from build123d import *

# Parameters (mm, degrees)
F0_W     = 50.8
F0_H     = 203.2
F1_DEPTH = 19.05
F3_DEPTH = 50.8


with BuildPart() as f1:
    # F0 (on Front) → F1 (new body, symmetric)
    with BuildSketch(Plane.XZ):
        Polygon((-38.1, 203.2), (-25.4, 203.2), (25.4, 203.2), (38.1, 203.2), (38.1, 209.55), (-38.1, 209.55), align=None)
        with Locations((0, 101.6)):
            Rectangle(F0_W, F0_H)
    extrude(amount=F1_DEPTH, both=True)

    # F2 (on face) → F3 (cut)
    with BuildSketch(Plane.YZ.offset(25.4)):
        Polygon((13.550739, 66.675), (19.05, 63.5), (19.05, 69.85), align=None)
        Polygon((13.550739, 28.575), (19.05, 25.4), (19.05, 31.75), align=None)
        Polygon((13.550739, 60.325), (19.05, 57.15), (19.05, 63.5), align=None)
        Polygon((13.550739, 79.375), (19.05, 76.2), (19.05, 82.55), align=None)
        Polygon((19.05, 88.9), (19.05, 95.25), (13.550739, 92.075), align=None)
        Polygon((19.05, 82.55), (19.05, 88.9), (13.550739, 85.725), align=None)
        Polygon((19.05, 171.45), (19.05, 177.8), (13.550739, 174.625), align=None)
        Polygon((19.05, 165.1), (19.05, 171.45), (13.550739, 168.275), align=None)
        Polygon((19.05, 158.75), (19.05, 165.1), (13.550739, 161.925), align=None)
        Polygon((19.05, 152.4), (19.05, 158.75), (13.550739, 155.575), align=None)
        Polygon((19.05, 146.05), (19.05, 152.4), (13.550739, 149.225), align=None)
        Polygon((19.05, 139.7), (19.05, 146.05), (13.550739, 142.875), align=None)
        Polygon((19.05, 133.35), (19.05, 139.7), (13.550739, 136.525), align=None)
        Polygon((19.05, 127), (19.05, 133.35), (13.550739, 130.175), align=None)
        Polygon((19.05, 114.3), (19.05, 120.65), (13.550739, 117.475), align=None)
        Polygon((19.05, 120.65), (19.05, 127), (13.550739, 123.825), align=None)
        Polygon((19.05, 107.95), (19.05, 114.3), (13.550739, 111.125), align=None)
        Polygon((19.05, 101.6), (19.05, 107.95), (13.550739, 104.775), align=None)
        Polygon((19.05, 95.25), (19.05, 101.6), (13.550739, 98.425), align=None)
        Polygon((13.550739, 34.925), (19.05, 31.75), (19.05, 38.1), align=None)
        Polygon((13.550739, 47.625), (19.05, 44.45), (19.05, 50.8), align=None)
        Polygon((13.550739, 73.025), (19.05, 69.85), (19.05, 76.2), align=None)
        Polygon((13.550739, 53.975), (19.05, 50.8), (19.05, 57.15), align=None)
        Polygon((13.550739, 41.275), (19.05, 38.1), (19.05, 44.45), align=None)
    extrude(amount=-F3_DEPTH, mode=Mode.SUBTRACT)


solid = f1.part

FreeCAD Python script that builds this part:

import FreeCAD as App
import Part
import Sketcher
from FreeCAD import Vector
Q = App.Units.Quantity

doc = App.newDocument("Part")
body = doc.addObject("PartDesign::Body", "Body")

# Sketch on XZ plane
sketch1 = doc.addObject("Sketcher::SketchObject", "Sketch")
body.addObject(sketch1)
sketch1.AttachmentSupport = (doc.XZ_Plane, [""])
sketch1.MapMode = "FlatFace"
sketch1.addGeometry(Part.LineSegment(Vector(-38, 203, 0), Vector(-25, 203, 0)), False)
sketch1.addGeometry(Part.LineSegment(Vector(-25, 203, 0), Vector(-25, 0, 0)), False)
sketch1.addGeometry(Part.LineSegment(Vector(-25, 0, 0), Vector(25, 0, 0)), False)
sketch1.addGeometry(Part.LineSegment(Vector(25, 0, 0), Vector(25, 203, 0)), False)
sketch1.addGeometry(Part.LineSegment(Vector(25, 203, 0), Vector(38, 203, 0)), False)
sketch1.addGeometry(Part.LineSegment(Vector(38, 203, 0), Vector(38, 210, 0)), False)
sketch1.addGeometry(Part.LineSegment(Vector(38, 210, 0), Vector(-38, 210, 0)), False)
sketch1.addGeometry(Part.LineSegment(Vector(-38, 210, 0), Vector(-38, 203, 0)), False)
sketch1.addConstraint(Sketcher.Constraint("Coincident", 0, 2, 1, 1))
sketch1.addConstraint(Sketcher.Constraint("Coincident", 1, 2, 2, 1))
sketch1.addConstraint(Sketcher.Constraint("Coincident", 2, 2, 3, 1))
sketch1.addConstraint(Sketcher.Constraint("Coincident", 3, 2, 4, 1))
sketch1.addConstraint(Sketcher.Constraint("Coincident", 4, 2, 5, 1))
sketch1.addConstraint(Sketcher.Constraint("Coincident", 5, 2, 6, 1))
sketch1.addConstraint(Sketcher.Constraint("Coincident", 6, 2, 7, 1))
sketch1.addConstraint(Sketcher.Constraint("Coincident", 7, 2, 0, 1))
sketch1.addConstraint(Sketcher.Constraint("Horizontal", 0))
sketch1.addConstraint(Sketcher.Constraint("Vertical", 1))
sketch1.addConstraint(Sketcher.Constraint("Horizontal", 2))
sketch1.addConstraint(Sketcher.Constraint("Vertical", 3))
sketch1.addConstraint(Sketcher.Constraint("Horizontal", 4))
sketch1.addConstraint(Sketcher.Constraint("Vertical", 5))
sketch1.addConstraint(Sketcher.Constraint("Horizontal", 6))
sketch1.addConstraint(Sketcher.Constraint("Vertical", 7))
sketch1.addConstraint(Sketcher.Constraint("Symmetric", 1, 2, 2, 2, -1, 1))
sketch1.addConstraint(Sketcher.Constraint("Symmetric", 4, 2, 7, 2, -2))
sketch1.addConstraint(Sketcher.Constraint("DistanceX", 2, 1, 2, 2, Q("2 in")))
sketch1.addConstraint(Sketcher.Constraint("DistanceX", 6, 2, 6, 1, Q("3 in")))
sketch1.addConstraint(Sketcher.Constraint("DistanceY", 1, 2, 1, 1, Q("8 in")))
sketch1.addConstraint(Sketcher.Constraint("DistanceY", 5, 1, 5, 2, Q("0.25 in")))
pad1 = doc.addObject("PartDesign::Pad", "Pad")
body.addObject(pad1)
pad1.Profile = sketch1
pad1.Length = Q("1.5 in")
pad1.Midplane = True

# Sketch on YZ plane
sketch2 = doc.addObject("Sketcher::SketchObject", "Sketch001")
body.addObject(sketch2)
sketch2.AttachmentSupport = (doc.YZ_Plane, [""])
sketch2.MapMode = "FlatFace"
sketch2.AttachmentOffset = App.Placement(Vector(0, 0, 1 * 25.4), App.Rotation())
sketch2.addGeometry(Part.LineSegment(Vector(14, 67, 0), Vector(19, 64, 0)), False)
sketch2.addGeometry(Part.LineSegment(Vector(19, 64, 0), Vector(19, 70, 0)), False)
sketch2.addGeometry(Part.LineSegment(Vector(19, 70, 0), Vector(14, 67, 0)), False)
sketch2.addGeometry(Part.LineSegment(Vector(14, 29, 0), Vector(19, 25, 0)), False)
sketch2.addGeometry(Part.LineSegment(Vector(19, 25, 0), Vector(19, 32, 0)), False)
sketch2.addGeometry(Part.LineSegment(Vector(19, 32, 0), Vector(14, 29, 0)), False)
sketch2.addGeometry(Part.LineSegment(Vector(14, 60, 0), Vector(19, 57, 0)), False)
sketch2.addGeometry(Part.LineSegment(Vector(19, 57, 0), Vector(19, 64, 0)), False)
sketch2.addGeometry(Part.LineSegment(Vector(19, 64, 0), Vector(14, 60, 0)), False)
sketch2.addGeometry(Part.LineSegment(Vector(14, 79, 0), Vector(19, 76, 0)), False)
sketch2.addGeometry(Part.LineSegment(Vector(19, 76, 0), Vector(19, 83, 0)), False)
sketch2.addGeometry(Part.LineSegment(Vector(19, 83, 0), Vector(14, 79, 0)), False)
sketch2.addGeometry(Part.LineSegment(Vector(19, 89, 0), Vector(19, 95, 0)), False)
sketch2.addGeometry(Part.LineSegment(Vector(19, 95, 0), Vector(14, 92, 0)), False)
sketch2.addGeometry(Part.LineSegment(Vector(14, 92, 0), Vector(19, 89, 0)), False)
sketch2.addGeometry(Part.LineSegment(Vector(19, 83, 0), Vector(19, 89, 0)), False)
sketch2.addGeometry(Part.LineSegment(Vector(19, 89, 0), Vector(14, 86, 0)), False)
sketch2.addGeometry(Part.LineSegment(Vector(14, 86, 0), Vector(19, 83, 0)), False)
sketch2.addGeometry(Part.LineSegment(Vector(19, 171, 0), Vector(19, 178, 0)), False)
sketch2.addGeometry(Part.LineSegment(Vector(19, 178, 0), Vector(14, 175, 0)), False)
sketch2.addGeometry(Part.LineSegment(Vector(14, 175, 0), Vector(19, 171, 0)), False)
sketch2.addGeometry(Part.LineSegment(Vector(19, 165, 0), Vector(19, 171, 0)), False)
sketch2.addGeometry(Part.LineSegment(Vector(19, 171, 0), Vector(14, 168, 0)), False)
sketch2.addGeometry(Part.LineSegment(Vector(14, 168, 0), Vector(19, 165, 0)), False)
sketch2.addGeometry(Part.LineSegment(Vector(19, 159, 0), Vector(19, 165, 0)), False)
sketch2.addGeometry(Part.LineSegment(Vector(19, 165, 0), Vector(14, 162, 0)), False)
sketch2.addGeometry(Part.LineSegment(Vector(14, 162, 0), Vector(19, 159, 0)), False)
sketch2.addGeometry(Part.LineSegment(Vector(19, 152, 0), Vector(19, 159, 0)), False)
sketch2.addGeometry(Part.LineSegment(Vector(19, 159, 0), Vector(14, 156, 0)), False)
sketch2.addGeometry(Part.LineSegment(Vector(14, 156, 0), Vector(19, 152, 0)), False)
sketch2.addGeometry(Part.LineSegment(Vector(19, 146, 0), Vector(19, 152, 0)), False)
sketch2.addGeometry(Part.LineSegment(Vector(19, 152, 0), Vector(14, 149, 0)), False)
sketch2.addGeometry(Part.LineSegment(Vector(14, 149, 0), Vector(19, 146, 0)), False)
sketch2.addGeometry(Part.LineSegment(Vector(19, 140, 0), Vector(19, 146, 0)), False)
sketch2.addGeometry(Part.LineSegment(Vector(19, 146, 0), Vector(14, 143, 0)), False)
sketch2.addGeometry(Part.LineSegment(Vector(14, 143, 0), Vector(19, 140, 0)), False)
sketch2.addGeometry(Part.LineSegment(Vector(19, 133, 0), Vector(19, 140, 0)), False)
sketch2.addGeometry(Part.LineSegment(Vector(19, 140, 0), Vector(14, 137, 0)), False)
sketch2.addGeometry(Part.LineSegment(Vector(14, 137, 0), Vector(19, 133, 0)), False)
sketch2.addGeometry(Part.LineSegment(Vector(19, 127, 0), Vector(19, 133, 0)), False)
sketch2.addGeometry(Part.LineSegment(Vector(19, 133, 0), Vector(14, 130, 0)), False)
sketch2.addGeometry(Part.LineSegment(Vector(14, 130, 0), Vector(19, 127, 0)), False)
sketch2.addGeometry(Part.LineSegment(Vector(19, 114, 0), Vector(19, 121, 0)), False)
sketch2.addGeometry(Part.LineSegment(Vector(19, 121, 0), Vector(14, 117, 0)), False)
sketch2.addGeometry(Part.LineSegment(Vector(14, 117, 0), Vector(19, 114, 0)), False)
sketch2.addGeometry(Part.LineSegment(Vector(19, 121, 0), Vector(19, 127, 0)), False)
sketch2.addGeometry(Part.LineSegment(Vector(19, 127, 0), Vector(14, 124, 0)), False)
sketch2.addGeometry(Part.LineSegment(Vector(14, 124, 0), Vector(19, 121, 0)), False)
sketch2.addGeometry(Part.LineSegment(Vector(19, 108, 0), Vector(19, 114, 0)), False)
sketch2.addGeometry(Part.LineSegment(Vector(19, 114, 0), Vector(14, 111, 0)), False)
sketch2.addGeometry(Part.LineSegment(Vector(14, 111, 0), Vector(19, 108, 0)), False)
sketch2.addGeometry(Part.LineSegment(Vector(19, 102, 0), Vector(19, 108, 0)), False)
sketch2.addGeometry(Part.LineSegment(Vector(19, 108, 0), Vector(14, 105, 0)), False)
sketch2.addGeometry(Part.LineSegment(Vector(14, 105, 0), Vector(19, 102, 0)), False)
sketch2.addGeometry(Part.LineSegment(Vector(19, 95, 0), Vector(19, 102, 0)), False)
sketch2.addGeometry(Part.LineSegment(Vector(19, 102, 0), Vector(14, 98, 0)), False)
sketch2.addGeometry(Part.LineSegment(Vector(14, 98, 0), Vector(19, 95, 0)), False)
sketch2.addGeometry(Part.LineSegment(Vector(14, 35, 0), Vector(19, 32, 0)), False)
sketch2.addGeometry(Part.LineSegment(Vector(19, 32, 0), Vector(19, 38, 0)), False)
sketch2.addGeometry(Part.LineSegment(Vector(19, 38, 0), Vector(14, 35, 0)), False)
sketch2.addGeometry(Part.LineSegment(Vector(14, 48, 0), Vector(19, 44, 0)), False)
sketch2.addGeometry(Part.LineSegment(Vector(19, 44, 0), Vector(19, 51, 0)), False)
sketch2.addGeometry(Part.LineSegment(Vector(19, 51, 0), Vector(14, 48, 0)), False)
sketch2.addGeometry(Part.LineSegment(Vector(14, 73, 0), Vector(19, 70, 0)), False)
sketch2.addGeometry(Part.LineSegment(Vector(19, 70, 0), Vector(19, 76, 0)), False)
sketch2.addGeometry(Part.LineSegment(Vector(19, 76, 0), Vector(14, 73, 0)), False)
sketch2.addGeometry(Part.LineSegment(Vector(14, 54, 0), Vector(19, 51, 0)), False)
sketch2.addGeometry(Part.LineSegment(Vector(19, 51, 0), Vector(19, 57, 0)), False)
sketch2.addGeometry(Part.LineSegment(Vector(19, 57, 0), Vector(14, 54, 0)), False)
sketch2.addGeometry(Part.LineSegment(Vector(14, 41, 0), Vector(19, 38, 0)), False)
sketch2.addGeometry(Part.LineSegment(Vector(19, 38, 0), Vector(19, 44, 0)), False)
sketch2.addGeometry(Part.LineSegment(Vector(19, 44, 0), Vector(14, 41, 0)), False)
sketch2.addConstraint(Sketcher.Constraint("Coincident", 0, 2, 1, 1))
sketch2.addConstraint(Sketcher.Constraint("Coincident", 1, 2, 2, 1))
sketch2.addConstraint(Sketcher.Constraint("Coincident", 2, 2, 0, 1))
sketch2.addConstraint(Sketcher.Constraint("Coincident", 3, 2, 4, 1))
sketch2.addConstraint(Sketcher.Constraint("Coincident", 4, 2, 5, 1))
sketch2.addConstraint(Sketcher.Constraint("Coincident", 5, 2, 3, 1))
sketch2.addConstraint(Sketcher.Constraint("Coincident", 6, 2, 7, 1))
sketch2.addConstraint(Sketcher.Constraint("Coincident", 7, 2, 8, 1))
sketch2.addConstraint(Sketcher.Constraint("Coincident", 8, 2, 6, 1))
sketch2.addConstraint(Sketcher.Constraint("Coincident", 9, 2, 10, 1))
sketch2.addConstraint(Sketcher.Constraint("Coincident", 10, 2, 11, 1))
sketch2.addConstraint(Sketcher.Constraint("Coincident", 11, 2, 9, 1))
sketch2.addConstraint(Sketcher.Constraint("Coincident", 12, 2, 13, 1))
sketch2.addConstraint(Sketcher.Constraint("Coincident", 13, 2, 14, 1))
sketch2.addConstraint(Sketcher.Constraint("Coincident", 14, 2, 12, 1))
sketch2.addConstraint(Sketcher.Constraint("Coincident", 15, 2, 16, 1))
sketch2.addConstraint(Sketcher.Constraint("Coincident", 16, 2, 17, 1))
sketch2.addConstraint(Sketcher.Constraint("Coincident", 17, 2, 15, 1))
sketch2.addConstraint(Sketcher.Constraint("Coincident", 18, 2, 19, 1))
sketch2.addConstraint(Sketcher.Constraint("Coincident", 19, 2, 20, 1))
sketch2.addConstraint(Sketcher.Constraint("Coincident", 20, 2, 18, 1))
sketch2.addConstraint(Sketcher.Constraint("Coincident", 21, 2, 22, 1))
sketch2.addConstraint(Sketcher.Constraint("Coincident", 22, 2, 23, 1))
sketch2.addConstraint(Sketcher.Constraint("Coincident", 23, 2, 21, 1))
sketch2.addConstraint(Sketcher.Constraint("Coincident", 24, 2, 25, 1))
sketch2.addConstraint(Sketcher.Constraint("Coincident", 25, 2, 26, 1))
sketch2.addConstraint(Sketcher.Constraint("Coincident", 26, 2, 24, 1))
sketch2.addConstraint(Sketcher.Constraint("Coincident", 27, 2, 28, 1))
sketch2.addConstraint(Sketcher.Constraint("Coincident", 28, 2, 29, 1))
sketch2.addConstraint(Sketcher.Constraint("Coincident", 29, 2, 27, 1))
sketch2.addConstraint(Sketcher.Constraint("Coincident", 30, 2, 31, 1))
sketch2.addConstraint(Sketcher.Constraint("Coincident", 31, 2, 32, 1))
sketch2.addConstraint(Sketcher.Constraint("Coincident", 32, 2, 30, 1))
sketch2.addConstraint(Sketcher.Constraint("Coincident", 33, 2, 34, 1))
sketch2.addConstraint(Sketcher.Constraint("Coincident", 34, 2, 35, 1))
sketch2.addConstraint(Sketcher.Constraint("Coincident", 35, 2, 33, 1))
sketch2.addConstraint(Sketcher.Constraint("Coincident", 36, 2, 37, 1))
sketch2.addConstraint(Sketcher.Constraint("Coincident", 37, 2, 38, 1))
sketch2.addConstraint(Sketcher.Constraint("Coincident", 38, 2, 36, 1))
sketch2.addConstraint(Sketcher.Constraint("Coincident", 39, 2, 40, 1))
sketch2.addConstraint(Sketcher.Constraint("Coincident", 40, 2, 41, 1))
sketch2.addConstraint(Sketcher.Constraint("Coincident", 41, 2, 39, 1))
sketch2.addConstraint(Sketcher.Constraint("Coincident", 42, 2, 43, 1))
sketch2.addConstraint(Sketcher.Constraint("Coincident", 43, 2, 44, 1))
sketch2.addConstraint(Sketcher.Constraint("Coincident", 44, 2, 42, 1))
sketch2.addConstraint(Sketcher.Constraint("Coincident", 45, 2, 46, 1))
sketch2.addConstraint(Sketcher.Constraint("Coincident", 46, 2, 47, 1))
sketch2.addConstraint(Sketcher.Constraint("Coincident", 47, 2, 45, 1))
sketch2.addConstraint(Sketcher.Constraint("Coincident", 48, 2, 49, 1))
sketch2.addConstraint(Sketcher.Constraint("Coincident", 49, 2, 50, 1))
sketch2.addConstraint(Sketcher.Constraint("Coincident", 50, 2, 48, 1))
sketch2.addConstraint(Sketcher.Constraint("Coincident", 51, 2, 52, 1))
sketch2.addConstraint(Sketcher.Constraint("Coincident", 52, 2, 53, 1))
sketch2.addConstraint(Sketcher.Constraint("Coincident", 53, 2, 51, 1))
sketch2.addConstraint(Sketcher.Constraint("Coincident", 54, 2, 55, 1))
sketch2.addConstraint(Sketcher.Constraint("Coincident", 55, 2, 56, 1))
sketch2.addConstraint(Sketcher.Constraint("Coincident", 56, 2, 54, 1))
sketch2.addConstraint(Sketcher.Constraint("Coincident", 57, 2, 58, 1))
sketch2.addConstraint(Sketcher.Constraint("Coincident", 58, 2, 59, 1))
sketch2.addConstraint(Sketcher.Constraint("Coincident", 59, 2, 57, 1))
sketch2.addConstraint(Sketcher.Constraint("Coincident", 60, 2, 61, 1))
sketch2.addConstraint(Sketcher.Constraint("Coincident", 61, 2, 62, 1))
sketch2.addConstraint(Sketcher.Constraint("Coincident", 62, 2, 60, 1))
sketch2.addConstraint(Sketcher.Constraint("Coincident", 63, 2, 64, 1))
sketch2.addConstraint(Sketcher.Constraint("Coincident", 64, 2, 65, 1))
sketch2.addConstraint(Sketcher.Constraint("Coincident", 65, 2, 63, 1))
sketch2.addConstraint(Sketcher.Constraint("Coincident", 66, 2, 67, 1))
sketch2.addConstraint(Sketcher.Constraint("Coincident", 67, 2, 68, 1))
sketch2.addConstraint(Sketcher.Constraint("Coincident", 68, 2, 66, 1))
sketch2.addConstraint(Sketcher.Constraint("Coincident", 69, 2, 70, 1))
sketch2.addConstraint(Sketcher.Constraint("Coincident", 70, 2, 71, 1))
sketch2.addConstraint(Sketcher.Constraint("Coincident", 71, 2, 69, 1))
sketch2.addConstraint(Sketcher.Constraint("Vertical", 1))
sketch2.addConstraint(Sketcher.Constraint("Vertical", 4))
sketch2.addConstraint(Sketcher.Constraint("Vertical", 7))
sketch2.addConstraint(Sketcher.Constraint("Vertical", 10))
sketch2.addConstraint(Sketcher.Constraint("Vertical", 12))
sketch2.addConstraint(Sketcher.Constraint("Vertical", 15))
sketch2.addConstraint(Sketcher.Constraint("Vertical", 18))
sketch2.addConstraint(Sketcher.Constraint("Vertical", 21))
sketch2.addConstraint(Sketcher.Constraint("Vertical", 24))
sketch2.addConstraint(Sketcher.Constraint("Vertical", 27))
sketch2.addConstraint(Sketcher.Constraint("Vertical", 30))
sketch2.addConstraint(Sketcher.Constraint("Vertical", 33))
sketch2.addConstraint(Sketcher.Constraint("Vertical", 36))
sketch2.addConstraint(Sketcher.Constraint("Vertical", 39))
sketch2.addConstraint(Sketcher.Constraint("Vertical", 42))
sketch2.addConstraint(Sketcher.Constraint("Vertical", 45))
sketch2.addConstraint(Sketcher.Constraint("Vertical", 48))
sketch2.addConstraint(Sketcher.Constraint("Vertical", 51))
sketch2.addConstraint(Sketcher.Constraint("Vertical", 54))
sketch2.addConstraint(Sketcher.Constraint("Vertical", 58))
sketch2.addConstraint(Sketcher.Constraint("Vertical", 61))
sketch2.addConstraint(Sketcher.Constraint("Vertical", 64))
sketch2.addConstraint(Sketcher.Constraint("Vertical", 67))
sketch2.addConstraint(Sketcher.Constraint("Vertical", 70))
sketch2.addConstraint(Sketcher.Constraint("Coincident", 7, 2, 0, 2))
sketch2.addConstraint(Sketcher.Constraint("Coincident", 15, 2, 14, 2))
sketch2.addConstraint(Sketcher.Constraint("Coincident", 17, 2, 10, 2))
sketch2.addConstraint(Sketcher.Constraint("Coincident", 21, 2, 20, 2))
sketch2.addConstraint(Sketcher.Constraint("Coincident", 24, 2, 23, 2))
sketch2.addConstraint(Sketcher.Constraint("Coincident", 27, 2, 26, 2))
sketch2.addConstraint(Sketcher.Constraint("Coincident", 30, 2, 29, 2))
sketch2.addConstraint(Sketcher.Constraint("Coincident", 33, 2, 32, 2))
sketch2.addConstraint(Sketcher.Constraint("Coincident", 36, 2, 35, 2))
sketch2.addConstraint(Sketcher.Constraint("Coincident", 39, 2, 38, 2))
sketch2.addConstraint(Sketcher.Constraint("Coincident", 45, 2, 41, 2))
sketch2.addConstraint(Sketcher.Constraint("Coincident", 47, 2, 42, 2))
sketch2.addConstraint(Sketcher.Constraint("Coincident", 48, 2, 44, 2))
sketch2.addConstraint(Sketcher.Constraint("Coincident", 51, 2, 50, 2))
sketch2.addConstraint(Sketcher.Constraint("Coincident", 54, 2, 53, 2))
sketch2.addConstraint(Sketcher.Constraint("Coincident", 56, 2, 12, 2))
sketch2.addConstraint(Sketcher.Constraint("Coincident", 57, 2, 4, 2))
sketch2.addConstraint(Sketcher.Constraint("Coincident", 63, 2, 1, 2))
sketch2.addConstraint(Sketcher.Constraint("Coincident", 64, 2, 9, 2))
sketch2.addConstraint(Sketcher.Constraint("Coincident", 66, 2, 61, 2))
sketch2.addConstraint(Sketcher.Constraint("Coincident", 67, 2, 6, 2))
sketch2.addConstraint(Sketcher.Constraint("Coincident", 69, 2, 58, 2))
sketch2.addConstraint(Sketcher.Constraint("Coincident", 70, 2, 60, 2))
sketch2.addConstraint(Sketcher.Constraint("Parallel", 0, 3))
sketch2.addConstraint(Sketcher.Constraint("Parallel", 2, 5))
sketch2.addConstraint(Sketcher.Constraint("Parallel", 3, 6))
sketch2.addConstraint(Sketcher.Constraint("Parallel", 5, 8))
sketch2.addConstraint(Sketcher.Constraint("Parallel", 6, 9))
sketch2.addConstraint(Sketcher.Constraint("Parallel", 8, 11))
sketch2.addConstraint(Sketcher.Constraint("Parallel", 11, 13))
sketch2.addConstraint(Sketcher.Constraint("Parallel", 9, 14))
sketch2.addConstraint(Sketcher.Constraint("Parallel", 13, 16))
sketch2.addConstraint(Sketcher.Constraint("Parallel", 14, 17))
sketch2.addConstraint(Sketcher.Constraint("Parallel", 16, 19))
sketch2.addConstraint(Sketcher.Constraint("Parallel", 17, 20))
sketch2.addConstraint(Sketcher.Constraint("Parallel", 19, 22))
sketch2.addConstraint(Sketcher.Constraint("Parallel", 20, 23))
sketch2.addConstraint(Sketcher.Constraint("Parallel", 22, 25))
sketch2.addConstraint(Sketcher.Constraint("Parallel", 23, 26))
sketch2.addConstraint(Sketcher.Constraint("Parallel", 25, 28))
sketch2.addConstraint(Sketcher.Constraint("Parallel", 26, 29))
sketch2.addConstraint(Sketcher.Constraint("Parallel", 28, 31))
sketch2.addConstraint(Sketcher.Constraint("Parallel", 29, 32))
sketch2.addConstraint(Sketcher.Constraint("Parallel", 31, 34))
sketch2.addConstraint(Sketcher.Constraint("Parallel", 32, 35))
sketch2.addConstraint(Sketcher.Constraint("Parallel", 34, 37))
sketch2.addConstraint(Sketcher.Constraint("Parallel", 35, 38))
sketch2.addConstraint(Sketcher.Constraint("Parallel", 37, 40))
sketch2.addConstraint(Sketcher.Constraint("Parallel", 38, 41))
sketch2.addConstraint(Sketcher.Constraint("Parallel", 40, 43))
sketch2.addConstraint(Sketcher.Constraint("Parallel", 41, 44))
sketch2.addConstraint(Sketcher.Constraint("Parallel", 43, 46))
sketch2.addConstraint(Sketcher.Constraint("Parallel", 44, 47))
sketch2.addConstraint(Sketcher.Constraint("Parallel", 46, 49))
sketch2.addConstraint(Sketcher.Constraint("Parallel", 47, 50))
sketch2.addConstraint(Sketcher.Constraint("Parallel", 49, 52))
sketch2.addConstraint(Sketcher.Constraint("Parallel", 50, 53))
sketch2.addConstraint(Sketcher.Constraint("Parallel", 52, 55))
sketch2.addConstraint(Sketcher.Constraint("Parallel", 53, 56))
sketch2.addConstraint(Sketcher.Constraint("Parallel", 56, 57))
sketch2.addConstraint(Sketcher.Constraint("Parallel", 55, 59))
sketch2.addConstraint(Sketcher.Constraint("Parallel", 57, 60))
sketch2.addConstraint(Sketcher.Constraint("Parallel", 59, 62))
sketch2.addConstraint(Sketcher.Constraint("Parallel", 60, 63))
sketch2.addConstraint(Sketcher.Constraint("Parallel", 62, 65))
sketch2.addConstraint(Sketcher.Constraint("Parallel", 63, 66))
sketch2.addConstraint(Sketcher.Constraint("Parallel", 65, 68))
sketch2.addConstraint(Sketcher.Constraint("Parallel", 66, 69))
sketch2.addConstraint(Sketcher.Constraint("Parallel", 68, 71))
sketch2.addConstraint(Sketcher.Constraint("Vertical", 2, 2, 5, 2))
sketch2.addConstraint(Sketcher.Constraint("Vertical", 5, 2, 8, 2))
sketch2.addConstraint(Sketcher.Constraint("Vertical", 8, 2, 11, 2))
sketch2.addConstraint(Sketcher.Constraint("Vertical", 11, 2, 13, 2))
sketch2.addConstraint(Sketcher.Constraint("Vertical", 13, 2, 16, 2))
sketch2.addConstraint(Sketcher.Constraint("Vertical", 16, 2, 19, 2))
sketch2.addConstraint(Sketcher.Constraint("Vertical", 19, 2, 22, 2))
sketch2.addConstraint(Sketcher.Constraint("Vertical", 22, 2, 25, 2))
sketch2.addConstraint(Sketcher.Constraint("Vertical", 25, 2, 28, 2))
sketch2.addConstraint(Sketcher.Constraint("Vertical", 28, 2, 31, 2))
sketch2.addConstraint(Sketcher.Constraint("Vertical", 31, 2, 34, 2))
sketch2.addConstraint(Sketcher.Constraint("Vertical", 34, 2, 37, 2))
sketch2.addConstraint(Sketcher.Constraint("Vertical", 37, 2, 40, 2))
sketch2.addConstraint(Sketcher.Constraint("Vertical", 40, 2, 43, 2))
sketch2.addConstraint(Sketcher.Constraint("Vertical", 43, 2, 46, 2))
sketch2.addConstraint(Sketcher.Constraint("Vertical", 46, 2, 49, 2))
sketch2.addConstraint(Sketcher.Constraint("Vertical", 49, 2, 52, 2))
sketch2.addConstraint(Sketcher.Constraint("Vertical", 52, 2, 55, 2))
sketch2.addConstraint(Sketcher.Constraint("Vertical", 55, 2, 59, 2))
sketch2.addConstraint(Sketcher.Constraint("Vertical", 59, 2, 62, 2))
sketch2.addConstraint(Sketcher.Constraint("Vertical", 62, 2, 65, 2))
sketch2.addConstraint(Sketcher.Constraint("Vertical", 65, 2, 68, 2))
sketch2.addConstraint(Sketcher.Constraint("Vertical", 68, 2, 71, 2))
sketch2.addConstraint(Sketcher.Constraint("Equal", 0, 2))
sketch2.addConstraint(Sketcher.Constraint("DistanceY", -1, 1, 3, 2, Q("1 in")))
sketch2.addConstraint(Sketcher.Constraint("DistanceY", -1, 1, 9, 2, Q("3 in")))
sketch2.addConstraint(Sketcher.Constraint("Angle", 0, Q("-30.000001 deg")))
sketch2.addConstraint(Sketcher.Constraint("DistanceX", -1, 1, 0, 2, Q("0.75 in")))
pocket1 = doc.addObject("PartDesign::Pocket", "Pocket")
body.addObject(pocket1)
pocket1.Profile = sketch2
pocket1.Length = Q("2 in")

doc.recompute()
